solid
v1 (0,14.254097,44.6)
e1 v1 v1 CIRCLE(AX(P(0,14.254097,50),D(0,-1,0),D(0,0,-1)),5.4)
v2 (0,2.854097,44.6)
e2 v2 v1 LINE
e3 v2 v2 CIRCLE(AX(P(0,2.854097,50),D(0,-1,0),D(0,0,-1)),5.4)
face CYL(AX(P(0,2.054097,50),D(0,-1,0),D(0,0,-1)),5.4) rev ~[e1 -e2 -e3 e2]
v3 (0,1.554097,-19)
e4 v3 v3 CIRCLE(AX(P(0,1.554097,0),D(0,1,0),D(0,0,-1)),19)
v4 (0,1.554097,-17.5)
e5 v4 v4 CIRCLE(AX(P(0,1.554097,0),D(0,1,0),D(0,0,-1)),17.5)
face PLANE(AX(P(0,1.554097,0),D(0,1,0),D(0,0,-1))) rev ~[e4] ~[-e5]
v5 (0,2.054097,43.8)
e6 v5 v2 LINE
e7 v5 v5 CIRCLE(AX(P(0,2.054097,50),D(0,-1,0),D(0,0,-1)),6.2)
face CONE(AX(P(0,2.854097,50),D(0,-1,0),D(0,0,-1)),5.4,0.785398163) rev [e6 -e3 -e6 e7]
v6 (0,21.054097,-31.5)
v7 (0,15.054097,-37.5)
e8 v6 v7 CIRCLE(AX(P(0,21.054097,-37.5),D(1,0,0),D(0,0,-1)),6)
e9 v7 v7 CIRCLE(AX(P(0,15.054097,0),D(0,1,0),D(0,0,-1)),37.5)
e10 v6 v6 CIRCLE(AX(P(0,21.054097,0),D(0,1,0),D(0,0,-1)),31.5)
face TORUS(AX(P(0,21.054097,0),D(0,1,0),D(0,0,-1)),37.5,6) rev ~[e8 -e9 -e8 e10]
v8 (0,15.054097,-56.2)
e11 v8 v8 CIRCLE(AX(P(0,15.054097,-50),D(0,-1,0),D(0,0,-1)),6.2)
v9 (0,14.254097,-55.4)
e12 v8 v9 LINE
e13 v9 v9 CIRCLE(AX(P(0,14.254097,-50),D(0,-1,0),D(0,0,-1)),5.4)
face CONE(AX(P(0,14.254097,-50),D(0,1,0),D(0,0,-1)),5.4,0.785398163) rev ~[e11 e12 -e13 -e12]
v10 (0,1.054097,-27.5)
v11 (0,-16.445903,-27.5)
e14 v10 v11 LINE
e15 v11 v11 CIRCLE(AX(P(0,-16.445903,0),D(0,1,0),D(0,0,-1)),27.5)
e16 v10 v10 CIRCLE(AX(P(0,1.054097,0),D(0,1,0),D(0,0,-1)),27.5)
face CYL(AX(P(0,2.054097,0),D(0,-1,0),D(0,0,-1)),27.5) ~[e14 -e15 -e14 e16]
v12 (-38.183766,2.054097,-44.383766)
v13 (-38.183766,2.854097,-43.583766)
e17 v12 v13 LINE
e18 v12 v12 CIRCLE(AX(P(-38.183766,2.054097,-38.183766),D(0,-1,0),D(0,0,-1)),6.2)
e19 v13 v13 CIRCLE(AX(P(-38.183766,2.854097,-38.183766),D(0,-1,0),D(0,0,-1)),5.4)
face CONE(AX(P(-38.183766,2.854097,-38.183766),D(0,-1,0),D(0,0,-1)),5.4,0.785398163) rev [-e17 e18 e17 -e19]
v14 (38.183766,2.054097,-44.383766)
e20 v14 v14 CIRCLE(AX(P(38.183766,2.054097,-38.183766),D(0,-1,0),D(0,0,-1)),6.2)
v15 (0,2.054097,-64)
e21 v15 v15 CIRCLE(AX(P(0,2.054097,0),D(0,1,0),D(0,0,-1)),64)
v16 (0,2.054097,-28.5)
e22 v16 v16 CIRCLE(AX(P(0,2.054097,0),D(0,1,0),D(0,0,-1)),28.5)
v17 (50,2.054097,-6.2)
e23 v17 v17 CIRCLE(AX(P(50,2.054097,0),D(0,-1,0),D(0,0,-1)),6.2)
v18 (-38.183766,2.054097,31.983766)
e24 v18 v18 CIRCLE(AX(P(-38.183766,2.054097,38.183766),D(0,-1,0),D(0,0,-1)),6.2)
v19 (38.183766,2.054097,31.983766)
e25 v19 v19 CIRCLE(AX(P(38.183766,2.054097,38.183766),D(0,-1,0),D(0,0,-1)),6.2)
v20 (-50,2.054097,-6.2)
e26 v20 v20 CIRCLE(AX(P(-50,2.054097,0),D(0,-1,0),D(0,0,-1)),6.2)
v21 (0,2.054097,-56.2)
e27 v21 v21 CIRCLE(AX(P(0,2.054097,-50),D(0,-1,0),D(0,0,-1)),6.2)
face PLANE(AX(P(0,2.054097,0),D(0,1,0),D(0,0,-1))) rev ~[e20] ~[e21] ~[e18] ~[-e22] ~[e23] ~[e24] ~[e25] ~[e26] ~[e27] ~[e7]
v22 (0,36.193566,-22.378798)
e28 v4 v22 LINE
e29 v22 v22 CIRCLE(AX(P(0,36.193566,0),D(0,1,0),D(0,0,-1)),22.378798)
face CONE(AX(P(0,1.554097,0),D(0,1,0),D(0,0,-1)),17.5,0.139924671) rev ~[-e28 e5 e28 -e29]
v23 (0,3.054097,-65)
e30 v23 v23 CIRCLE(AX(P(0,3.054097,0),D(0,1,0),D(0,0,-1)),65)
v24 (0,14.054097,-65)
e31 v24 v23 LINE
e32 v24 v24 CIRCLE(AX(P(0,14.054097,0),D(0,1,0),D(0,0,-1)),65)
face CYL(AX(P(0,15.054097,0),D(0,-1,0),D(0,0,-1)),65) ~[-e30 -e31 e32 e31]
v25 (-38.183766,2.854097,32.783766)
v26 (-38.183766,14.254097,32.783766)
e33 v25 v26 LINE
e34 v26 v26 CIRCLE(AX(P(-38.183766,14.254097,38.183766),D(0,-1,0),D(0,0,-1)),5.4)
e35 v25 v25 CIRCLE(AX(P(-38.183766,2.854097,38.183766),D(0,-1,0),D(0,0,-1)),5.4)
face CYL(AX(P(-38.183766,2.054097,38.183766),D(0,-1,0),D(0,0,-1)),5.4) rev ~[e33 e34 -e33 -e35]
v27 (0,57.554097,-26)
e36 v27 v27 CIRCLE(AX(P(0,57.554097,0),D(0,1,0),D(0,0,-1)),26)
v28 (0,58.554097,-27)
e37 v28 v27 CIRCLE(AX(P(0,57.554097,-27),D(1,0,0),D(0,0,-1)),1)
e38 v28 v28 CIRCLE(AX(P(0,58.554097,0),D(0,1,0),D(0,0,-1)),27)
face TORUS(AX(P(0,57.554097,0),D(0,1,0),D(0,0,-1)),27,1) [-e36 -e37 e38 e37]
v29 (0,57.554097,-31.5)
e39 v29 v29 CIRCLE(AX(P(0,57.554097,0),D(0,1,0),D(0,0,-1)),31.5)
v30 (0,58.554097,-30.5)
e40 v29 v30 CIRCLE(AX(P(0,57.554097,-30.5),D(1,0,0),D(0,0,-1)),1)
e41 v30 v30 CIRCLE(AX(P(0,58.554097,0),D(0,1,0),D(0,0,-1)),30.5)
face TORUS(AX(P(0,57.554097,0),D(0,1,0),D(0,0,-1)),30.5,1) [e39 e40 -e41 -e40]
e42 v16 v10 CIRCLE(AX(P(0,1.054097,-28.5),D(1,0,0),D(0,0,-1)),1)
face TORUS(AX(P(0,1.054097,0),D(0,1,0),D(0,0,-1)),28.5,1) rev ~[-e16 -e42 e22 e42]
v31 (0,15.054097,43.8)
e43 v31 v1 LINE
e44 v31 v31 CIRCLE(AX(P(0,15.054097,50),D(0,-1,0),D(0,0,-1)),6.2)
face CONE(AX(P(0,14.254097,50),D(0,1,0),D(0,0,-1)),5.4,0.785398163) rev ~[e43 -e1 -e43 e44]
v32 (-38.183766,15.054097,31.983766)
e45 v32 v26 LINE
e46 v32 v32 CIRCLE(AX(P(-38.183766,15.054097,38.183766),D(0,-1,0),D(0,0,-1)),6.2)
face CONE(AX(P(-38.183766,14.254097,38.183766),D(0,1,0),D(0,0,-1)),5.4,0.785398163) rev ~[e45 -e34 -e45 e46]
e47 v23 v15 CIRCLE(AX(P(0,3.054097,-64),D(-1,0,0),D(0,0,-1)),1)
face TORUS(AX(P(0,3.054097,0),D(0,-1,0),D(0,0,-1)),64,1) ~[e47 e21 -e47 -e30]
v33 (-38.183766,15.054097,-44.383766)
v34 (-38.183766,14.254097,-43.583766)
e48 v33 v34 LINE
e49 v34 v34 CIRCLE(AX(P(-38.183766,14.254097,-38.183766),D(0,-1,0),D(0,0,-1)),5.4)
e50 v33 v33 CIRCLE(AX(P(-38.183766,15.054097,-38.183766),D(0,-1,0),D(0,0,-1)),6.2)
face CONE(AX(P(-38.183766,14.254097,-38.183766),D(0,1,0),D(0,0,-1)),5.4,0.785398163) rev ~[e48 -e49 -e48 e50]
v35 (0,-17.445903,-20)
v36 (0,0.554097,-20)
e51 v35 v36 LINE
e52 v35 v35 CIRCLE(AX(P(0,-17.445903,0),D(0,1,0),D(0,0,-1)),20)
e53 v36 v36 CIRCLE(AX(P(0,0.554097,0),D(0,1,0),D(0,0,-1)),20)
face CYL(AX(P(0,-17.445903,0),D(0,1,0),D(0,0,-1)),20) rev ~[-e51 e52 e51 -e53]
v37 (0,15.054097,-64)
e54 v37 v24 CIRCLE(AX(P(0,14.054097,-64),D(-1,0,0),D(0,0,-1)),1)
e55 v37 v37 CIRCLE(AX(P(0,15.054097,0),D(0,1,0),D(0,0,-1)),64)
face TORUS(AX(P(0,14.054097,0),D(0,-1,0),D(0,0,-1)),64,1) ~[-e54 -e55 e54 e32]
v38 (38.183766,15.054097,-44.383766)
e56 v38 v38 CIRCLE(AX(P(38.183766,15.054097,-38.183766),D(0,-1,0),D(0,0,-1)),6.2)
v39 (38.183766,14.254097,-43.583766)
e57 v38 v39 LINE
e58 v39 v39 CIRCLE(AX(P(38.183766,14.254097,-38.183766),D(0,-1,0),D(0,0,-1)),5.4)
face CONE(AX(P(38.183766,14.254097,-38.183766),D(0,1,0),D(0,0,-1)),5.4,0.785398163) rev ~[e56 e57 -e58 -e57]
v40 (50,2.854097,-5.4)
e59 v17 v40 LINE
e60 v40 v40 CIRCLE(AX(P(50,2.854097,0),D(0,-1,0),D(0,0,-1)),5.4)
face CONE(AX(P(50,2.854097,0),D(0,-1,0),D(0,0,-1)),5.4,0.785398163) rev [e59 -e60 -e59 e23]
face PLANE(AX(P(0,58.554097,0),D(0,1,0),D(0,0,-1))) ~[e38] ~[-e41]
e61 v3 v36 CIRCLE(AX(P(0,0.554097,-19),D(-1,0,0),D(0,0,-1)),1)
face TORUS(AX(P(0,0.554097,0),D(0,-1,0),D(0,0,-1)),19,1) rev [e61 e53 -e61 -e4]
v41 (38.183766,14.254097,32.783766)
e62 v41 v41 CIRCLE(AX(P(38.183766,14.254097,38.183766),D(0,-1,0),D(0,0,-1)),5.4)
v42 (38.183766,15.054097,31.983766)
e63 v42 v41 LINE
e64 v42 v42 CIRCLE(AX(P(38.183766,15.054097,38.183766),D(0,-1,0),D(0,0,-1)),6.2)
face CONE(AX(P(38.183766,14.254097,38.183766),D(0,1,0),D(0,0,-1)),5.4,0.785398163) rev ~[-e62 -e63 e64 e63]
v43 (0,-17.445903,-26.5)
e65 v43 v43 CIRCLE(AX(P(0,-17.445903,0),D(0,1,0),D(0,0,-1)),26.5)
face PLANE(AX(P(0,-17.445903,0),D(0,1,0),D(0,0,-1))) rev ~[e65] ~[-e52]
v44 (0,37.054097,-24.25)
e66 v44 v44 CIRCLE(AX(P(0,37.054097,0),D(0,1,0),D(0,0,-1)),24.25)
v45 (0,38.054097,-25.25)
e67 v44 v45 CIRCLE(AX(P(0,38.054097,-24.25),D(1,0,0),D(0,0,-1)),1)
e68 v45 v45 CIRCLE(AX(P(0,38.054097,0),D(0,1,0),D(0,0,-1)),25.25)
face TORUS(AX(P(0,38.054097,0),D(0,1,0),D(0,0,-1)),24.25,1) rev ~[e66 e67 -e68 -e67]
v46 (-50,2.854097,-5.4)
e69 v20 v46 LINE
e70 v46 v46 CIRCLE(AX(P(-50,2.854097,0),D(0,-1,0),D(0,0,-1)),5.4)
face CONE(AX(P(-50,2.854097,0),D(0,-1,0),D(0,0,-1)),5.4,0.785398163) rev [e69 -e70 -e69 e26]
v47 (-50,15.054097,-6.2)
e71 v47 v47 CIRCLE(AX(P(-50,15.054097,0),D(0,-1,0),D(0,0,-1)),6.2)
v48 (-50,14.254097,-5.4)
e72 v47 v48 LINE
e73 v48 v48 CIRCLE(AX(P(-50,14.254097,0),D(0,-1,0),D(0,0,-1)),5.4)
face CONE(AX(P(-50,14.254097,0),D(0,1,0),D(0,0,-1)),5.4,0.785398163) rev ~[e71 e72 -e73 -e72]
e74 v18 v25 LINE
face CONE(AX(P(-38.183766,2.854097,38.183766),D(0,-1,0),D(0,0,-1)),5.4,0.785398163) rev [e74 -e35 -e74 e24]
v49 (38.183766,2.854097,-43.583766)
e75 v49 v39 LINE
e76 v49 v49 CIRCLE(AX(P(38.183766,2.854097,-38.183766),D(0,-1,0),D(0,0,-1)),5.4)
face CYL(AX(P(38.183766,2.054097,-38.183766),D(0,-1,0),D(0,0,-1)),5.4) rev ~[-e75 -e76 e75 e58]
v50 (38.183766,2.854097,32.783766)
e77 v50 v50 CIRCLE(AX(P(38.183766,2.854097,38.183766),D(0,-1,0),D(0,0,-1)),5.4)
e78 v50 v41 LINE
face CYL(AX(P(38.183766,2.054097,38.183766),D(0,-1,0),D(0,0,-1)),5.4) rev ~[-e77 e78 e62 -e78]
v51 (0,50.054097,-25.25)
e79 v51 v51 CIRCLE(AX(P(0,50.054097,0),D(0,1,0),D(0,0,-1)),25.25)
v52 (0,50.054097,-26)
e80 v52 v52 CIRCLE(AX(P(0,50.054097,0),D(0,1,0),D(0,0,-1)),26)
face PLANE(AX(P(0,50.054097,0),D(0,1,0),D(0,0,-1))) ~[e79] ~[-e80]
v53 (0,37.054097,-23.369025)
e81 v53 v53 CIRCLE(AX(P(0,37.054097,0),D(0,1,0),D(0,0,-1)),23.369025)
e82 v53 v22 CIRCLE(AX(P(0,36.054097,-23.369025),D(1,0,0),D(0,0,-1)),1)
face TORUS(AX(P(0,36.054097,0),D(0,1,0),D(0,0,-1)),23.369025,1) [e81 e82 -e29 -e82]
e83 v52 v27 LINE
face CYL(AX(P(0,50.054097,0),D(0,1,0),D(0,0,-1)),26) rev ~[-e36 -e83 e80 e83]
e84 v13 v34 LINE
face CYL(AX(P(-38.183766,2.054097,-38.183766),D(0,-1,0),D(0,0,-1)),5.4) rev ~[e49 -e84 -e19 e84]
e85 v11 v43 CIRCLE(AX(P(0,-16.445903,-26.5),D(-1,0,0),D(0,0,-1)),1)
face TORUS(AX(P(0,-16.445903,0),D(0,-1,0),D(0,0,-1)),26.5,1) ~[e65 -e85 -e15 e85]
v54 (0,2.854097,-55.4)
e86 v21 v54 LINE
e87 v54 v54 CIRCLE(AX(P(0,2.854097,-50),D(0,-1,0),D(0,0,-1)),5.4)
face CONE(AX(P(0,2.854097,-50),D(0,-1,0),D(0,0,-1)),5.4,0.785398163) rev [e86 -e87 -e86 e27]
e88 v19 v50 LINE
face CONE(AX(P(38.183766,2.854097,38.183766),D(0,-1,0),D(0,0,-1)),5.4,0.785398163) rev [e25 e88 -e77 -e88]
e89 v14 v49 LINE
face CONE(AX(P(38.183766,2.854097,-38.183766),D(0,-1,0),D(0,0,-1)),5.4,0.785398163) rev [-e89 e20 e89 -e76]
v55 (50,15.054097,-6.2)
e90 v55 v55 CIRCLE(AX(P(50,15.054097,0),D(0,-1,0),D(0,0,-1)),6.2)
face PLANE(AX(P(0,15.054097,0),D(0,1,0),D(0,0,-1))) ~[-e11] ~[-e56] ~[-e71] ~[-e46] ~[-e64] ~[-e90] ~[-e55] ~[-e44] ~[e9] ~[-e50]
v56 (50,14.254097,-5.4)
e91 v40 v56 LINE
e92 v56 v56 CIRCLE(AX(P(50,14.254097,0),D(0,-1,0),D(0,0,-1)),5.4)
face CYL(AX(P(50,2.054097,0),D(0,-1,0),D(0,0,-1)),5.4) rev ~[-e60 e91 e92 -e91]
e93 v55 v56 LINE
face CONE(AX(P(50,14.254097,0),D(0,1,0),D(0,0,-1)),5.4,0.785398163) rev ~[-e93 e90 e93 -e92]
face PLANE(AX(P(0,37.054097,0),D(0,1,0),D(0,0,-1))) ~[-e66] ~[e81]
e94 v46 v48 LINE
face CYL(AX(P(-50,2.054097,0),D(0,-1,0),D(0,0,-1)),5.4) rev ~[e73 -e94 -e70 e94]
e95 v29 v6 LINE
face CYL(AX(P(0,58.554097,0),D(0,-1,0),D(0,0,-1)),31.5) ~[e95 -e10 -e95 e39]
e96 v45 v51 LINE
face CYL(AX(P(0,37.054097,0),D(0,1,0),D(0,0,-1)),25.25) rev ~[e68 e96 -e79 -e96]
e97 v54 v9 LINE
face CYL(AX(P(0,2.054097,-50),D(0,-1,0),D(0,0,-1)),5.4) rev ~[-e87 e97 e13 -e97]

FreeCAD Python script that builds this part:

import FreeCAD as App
import Part
import Sketcher
from FreeCAD import Vector
Q = App.Units.Quantity


def edges_at(feature, points):
    """Names of the edges that pass closest to the given points."""
    edges = feature.Shape.Edges
    near = lambda p: min(range(len(edges)), key=lambda i: edges[i].distToShape(Part.Vertex(*p))[0])
    return sorted({f"Edge{near(p) + 1}" for p in points})


def add_polygon(sketch, points):
    """Adds a closed chain of lines whose ends are joined by coincident constraints."""
    first, n = sketch.GeometryCount, len(points)
    for a, b in zip(points, points[1:] + points[:1]):
        sketch.addGeometry(Part.LineSegment(App.Vector(*a, 0), App.Vector(*b, 0)), False)
    for i in range(n):
        sketch.addConstraint(Sketcher.Constraint("Coincident", first + i, 2, first + (i + 1) % n, 1))

doc = App.newDocument("Part")
params = doc.addObject("Spreadsheet::Sheet", "Params")
for row, (alias, value) in enumerate([
    ("sketch1_height", "13 mm"),
    ("sketch1_height2", "19 mm"),
    ("sketch1_width", "5.5 mm"),
    ("sketch1_width2", "2.5 mm"),
    ("sketch1_width3", "7.5 mm"),
    ("revolution_angle", "360 deg"),
    ("fillet_radius", "6 mm"),
    ("fillet2_radius", "1 mm"),
    ("fillet3_radius", "1 mm"),
    ("fillet4_radius", "1 mm"),
    ("sketch2_diameter", "10.8 mm"),
    ("sketch3_diameter", "10.8 mm"),
    ("chamfer_size", "0.8 mm"),
], start=1):
    params.set(f"A{row}", alias)
    params.set(f"B{row}", "=" + value)
    params.setAlias(f"B{row}", alias)

body = doc.addObject("PartDesign::Body", "Body")

# Sketch on XY plane
sketch1 = body.newObject("Sketcher::SketchObject", "Sketch")
sketch1.AttachmentSupport = (doc.getObject("XY_Plane"), [""])
sketch1.MapMode = "FlatFace"
add_polygon(sketch1, [(31.5, 58.554097), (26, 58.554097), (26, 50.054097), (25.25, 50.054097), (25.25, 37.054097), (22.5, 37.054097), (17.5, 1.554097), (20, 1.554097), (20, -17.445903), (27.5, -17.445903), (27.5, 2.054097), (65, 2.054097), (65, 15.054097), (31.5, 15.054097)])  # lines 0-13
sketch1.addConstraint(Sketcher.Constraint("Horizontal", 0))
sketch1.addConstraint(Sketcher.Constraint("Vertical", 1))
sketch1.addConstraint(Sketcher.Constraint("Horizontal", 2))
sketch1.addConstraint(Sketcher.Constraint("Vertical", 3))
sketch1.addConstraint(Sketcher.Constraint("Horizontal", 4))
sketch1.addConstraint(Sketcher.Constraint("Horizontal", 6))
sketch1.addConstraint(Sketcher.Constraint("Vertical", 7))
sketch1.addConstraint(Sketcher.Constraint("Horizontal", 8))
sketch1.addConstraint(Sketcher.Constraint("Vertical", 9))
sketch1.addConstraint(Sketcher.Constraint("Horizontal", 10))
sketch1.addConstraint(Sketcher.Constraint("Vertical", 11))
sketch1.addConstraint(Sketcher.Constraint("Horizontal", 12))
sketch1.addConstraint(Sketcher.Constraint("Vertical", 13))
sketch1.addConstraint(Sketcher.Constraint("Equal", 3, 11))
sketch1.addConstraint(Sketcher.Constraint("DistanceY", 3, 2, 3, 1, Q("13 mm")))
sketch1.addConstraint(Sketcher.Constraint("DistanceY", 7, 2, 7, 1, Q("19 mm")))
sketch1.addConstraint(Sketcher.Constraint("DistanceX", 0, 2, 0, 1, Q("5.5 mm")))
sketch1.addConstraint(Sketcher.Constraint("DistanceX", 6, 1, 6, 2, Q("2.5 mm")))
sketch1.addConstraint(Sketcher.Constraint("DistanceX", 8, 1, 8, 2, Q("7.5 mm")))
sketch1.addConstraint(Sketcher.Constraint("DistanceX", 10, 1, 10, 2, Q("37.5 mm")))
sketch1.addConstraint(Sketcher.Constraint("DistanceX", 12, 2, 12, 1, Q("33.5 mm")))
sketch1.addConstraint(Sketcher.Constraint("DistanceY", 1, 2, 1, 1, Q("8.5 mm")))
sketch1.addConstraint(Sketcher.Constraint("DistanceY", 9, 1, 9, 2, Q("19.5 mm")))
sketch1.addConstraint(Sketcher.Constraint("DistanceY", 13, 1, 13, 2, Q("43.5 mm")))
sketch1.addConstraint(Sketcher.Constraint("DistanceX", -1, 1, 0, 2, Q("26 mm")))
sketch1.addConstraint(Sketcher.Constraint("DistanceX", 5, 2, 4, 2, Q("5 mm")))
sketch1.addConstraint(Sketcher.Constraint("DistanceX", 2, 2, 2, 1, Q("0.75 mm")))
sketch1.addConstraint(Sketcher.Constraint("DistanceY", -1, 1, 0, 2, Q("58.554097 mm")))
sketch1.setExpression("Constraints[28]", "Params.sketch1_height")
sketch1.setExpression("Constraints[29]", "Params.sketch1_height2")
sketch1.setExpression("Constraints[30]", "Params.sketch1_width")
sketch1.setExpression("Constraints[31]", "Params.sketch1_width2")
sketch1.setExpression("Constraints[32]", "Params.sketch1_width3")
revolution = body.newObject("PartDesign::Revolution", "Revolution")
revolution.Profile = sketch1
revolution.ReferenceAxis = (sketch1, ["V_Axis"])
revolution.setExpression("Angle", "Params.revolution_angle")
doc.recompute()

fillet = body.newObject("PartDesign::Fillet", "Fillet")
fillet.Base = (revolution, edges_at(revolution, [(0, 15.054, 31.5)]))
fillet.setExpression("Radius", "Params.fillet_radius")
doc.recompute()

fillet2 = body.newObject("PartDesign::Fillet", "Fillet001")
fillet2.Base = (fillet, edges_at(fillet, [
    (0, 2.054, 65),
    (0, 15.054, 65),
    (0, 58.554, 31.5),
    (0, 58.554, 26),
]))
fillet2.setExpression("Radius", "Params.fillet2_radius")
doc.recompute()

fillet3 = body.newObject("PartDesign::Fillet", "Fillet002")
fillet3.Base = (fillet2, edges_at(fillet2, [
    (0, 37.054, 22.5),
    (0, 1.554, 20),
    (0, -17.446, 27.5),
    (0, 2.054, 27.5),
]))
fillet3.setExpression("Radius", "Params.fillet3_radius")
doc.recompute()

fillet4 = body.newObject("PartDesign::Fillet", "Fillet003")
fillet4.Base = (fillet3, edges_at(fillet3, [(0, 37.054, 25.25)]))
fillet4.setExpression("Radius", "Params.fillet4_radius")

# Sketch on XZ plane
sketch2 = body.newObject("Sketcher::SketchObject", "Sketch001")
sketch2.AttachmentSupport = (doc.getObject("XZ_Plane"), [""])
sketch2.MapMode = "FlatFace"
sketch2.AttachmentOffset = App.Placement(Vector(0, 0, -2.054097), App.Rotation())
sketch2.addGeometry(Part.Circle(Vector(0, 50, 0), Vector(0, 0, 1), 5.4), False)
sketch2.addGeometry(Part.Circle(Vector(50, 0, 0), Vector(0, 0, 1), 5.4), False)
sketch2.addGeometry(Part.Circle(Vector(0, -50, 0), Vector(0, 0, 1), 5.4), False)
sketch2.addGeometry(Part.Circle(Vector(-50, 0, 0), Vector(0, 0, 1), 5.4), False)
sketch2.addConstraint(Sketcher.Constraint("Equal", 0, 1))
sketch2.addConstraint(Sketcher.Constraint("Equal", 1, 2))
sketch2.addConstraint(Sketcher.Constraint("Equal", 2, 3))
sketch2.addConstraint(Sketcher.Constraint("Symmetric", 0, 3, 2, 3, -1, 1))
sketch2.addConstraint(Sketcher.Constraint("Symmetric", 1, 3, 3, 3, -1, 1))
sketch2.addConstraint(Sketcher.Constraint("PointOnObject", 0, 3, -2))
sketch2.addConstraint(Sketcher.Constraint("PointOnObject", 1, 3, -1))
sketch2.addConstraint(Sketcher.Constraint("Diameter", 0, Q("10.8 mm")))
sketch2.addConstraint(Sketcher.Constraint("DistanceY", -1, 1, 0, 3, Q("50 mm")))
sketch2.addConstraint(Sketcher.Constraint("DistanceX", -1, 1, 1, 3, Q("50 mm")))
sketch2.setExpression("Constraints[7]", "Params.sketch2_diameter")
pocket1 = body.newObject("PartDesign::Pocket", "Pocket")
pocket1.Profile = sketch2
pocket1.Type = "ThroughAll"

# Sketch on XZ plane
sketch3 = body.newObject("Sketcher::SketchObject", "Sketch002")
sketch3.AttachmentSupport = (doc.getObject("XZ_Plane"), [""])
sketch3.MapMode = "FlatFace"
sketch3.AttachmentOffset = App.Placement(Vector(0, 0, -2.054097), App.Rotation())
sketch3.addGeometry(Part.Circle(Vector(38.183766, 38.183766, 0), Vector(0, 0, 1), 5.4), False)
sketch3.addGeometry(Part.Circle(Vector(38.183766, -38.183766, 0), Vector(0, 0, 1), 5.4), False)
sketch3.addGeometry(Part.Circle(Vector(-38.183766, -38.183766, 0), Vector(0, 0, 1), 5.4), False)
sketch3.addGeometry(Part.Circle(Vector(-38.183766, 38.183766, 0), Vector(0, 0, 1), 5.4), False)
sketch3.addConstraint(Sketcher.Constraint("Equal", 0, 1))
sketch3.addConstraint(Sketcher.Constraint("Equal", 1, 2))
sketch3.addConstraint(Sketcher.Constraint("Equal", 2, 3))
sketch3.addConstraint(Sketcher.Constraint("Symmetric", 0, 3, 2, 3, -1, 1))
sketch3.addConstraint(Sketcher.Constraint("Symmetric", 1, 3, 3, 3, -1, 1))
sketch3.addConstraint(Sketcher.Constraint("Symmetric", 1, 3, 2, 3, -2))
sketch3.addConstraint(Sketcher.Constraint("Diameter", 0, Q("10.8 mm")))
sketch3.addConstraint(Sketcher.Constraint("DistanceX", -1, 1, 0, 3, Q("38.183766 mm")))
sketch3.addConstraint(Sketcher.Constraint("DistanceY", -1, 1, 0, 3, Q("38.183766 mm")))
sketch3.setExpression("Constraints[6]", "Params.sketch3_diameter")
pocket2 = body.newObject("PartDesign::Pocket", "Pocket001")
pocket2.Profile = sketch3
pocket2.Type = "ThroughAll"
doc.recompute()

chamfer = body.newObject("PartDesign::Chamfer", "Chamfer")
chamfer.Base = (pocket2, edges_at(pocket2, [
    (0, 15.054, 55.4),
    (0, 2.054, 55.4),
    (50, 15.054, 5.4),
    (50, 2.054, 5.4),
    (0, 15.054, -44.6),
    (0, 2.054, -44.6),
    (-50, 15.054, 5.4),
    (-50, 2.054, 5.4),
    (38.184, 15.054, 43.584),
    (38.184, 2.054, 43.584),
    (38.184, 15.054, -32.784),
    (38.184, 2.054, -32.784),
    (-38.184, 15.054, -32.784),
    (-38.184, 2.054, -32.784),
    (-38.184, 15.054, 43.584),
    (-38.184, 2.054, 43.584),
]))
chamfer.setExpression("Size", "Params.chamfer_size")

doc.recompute()
